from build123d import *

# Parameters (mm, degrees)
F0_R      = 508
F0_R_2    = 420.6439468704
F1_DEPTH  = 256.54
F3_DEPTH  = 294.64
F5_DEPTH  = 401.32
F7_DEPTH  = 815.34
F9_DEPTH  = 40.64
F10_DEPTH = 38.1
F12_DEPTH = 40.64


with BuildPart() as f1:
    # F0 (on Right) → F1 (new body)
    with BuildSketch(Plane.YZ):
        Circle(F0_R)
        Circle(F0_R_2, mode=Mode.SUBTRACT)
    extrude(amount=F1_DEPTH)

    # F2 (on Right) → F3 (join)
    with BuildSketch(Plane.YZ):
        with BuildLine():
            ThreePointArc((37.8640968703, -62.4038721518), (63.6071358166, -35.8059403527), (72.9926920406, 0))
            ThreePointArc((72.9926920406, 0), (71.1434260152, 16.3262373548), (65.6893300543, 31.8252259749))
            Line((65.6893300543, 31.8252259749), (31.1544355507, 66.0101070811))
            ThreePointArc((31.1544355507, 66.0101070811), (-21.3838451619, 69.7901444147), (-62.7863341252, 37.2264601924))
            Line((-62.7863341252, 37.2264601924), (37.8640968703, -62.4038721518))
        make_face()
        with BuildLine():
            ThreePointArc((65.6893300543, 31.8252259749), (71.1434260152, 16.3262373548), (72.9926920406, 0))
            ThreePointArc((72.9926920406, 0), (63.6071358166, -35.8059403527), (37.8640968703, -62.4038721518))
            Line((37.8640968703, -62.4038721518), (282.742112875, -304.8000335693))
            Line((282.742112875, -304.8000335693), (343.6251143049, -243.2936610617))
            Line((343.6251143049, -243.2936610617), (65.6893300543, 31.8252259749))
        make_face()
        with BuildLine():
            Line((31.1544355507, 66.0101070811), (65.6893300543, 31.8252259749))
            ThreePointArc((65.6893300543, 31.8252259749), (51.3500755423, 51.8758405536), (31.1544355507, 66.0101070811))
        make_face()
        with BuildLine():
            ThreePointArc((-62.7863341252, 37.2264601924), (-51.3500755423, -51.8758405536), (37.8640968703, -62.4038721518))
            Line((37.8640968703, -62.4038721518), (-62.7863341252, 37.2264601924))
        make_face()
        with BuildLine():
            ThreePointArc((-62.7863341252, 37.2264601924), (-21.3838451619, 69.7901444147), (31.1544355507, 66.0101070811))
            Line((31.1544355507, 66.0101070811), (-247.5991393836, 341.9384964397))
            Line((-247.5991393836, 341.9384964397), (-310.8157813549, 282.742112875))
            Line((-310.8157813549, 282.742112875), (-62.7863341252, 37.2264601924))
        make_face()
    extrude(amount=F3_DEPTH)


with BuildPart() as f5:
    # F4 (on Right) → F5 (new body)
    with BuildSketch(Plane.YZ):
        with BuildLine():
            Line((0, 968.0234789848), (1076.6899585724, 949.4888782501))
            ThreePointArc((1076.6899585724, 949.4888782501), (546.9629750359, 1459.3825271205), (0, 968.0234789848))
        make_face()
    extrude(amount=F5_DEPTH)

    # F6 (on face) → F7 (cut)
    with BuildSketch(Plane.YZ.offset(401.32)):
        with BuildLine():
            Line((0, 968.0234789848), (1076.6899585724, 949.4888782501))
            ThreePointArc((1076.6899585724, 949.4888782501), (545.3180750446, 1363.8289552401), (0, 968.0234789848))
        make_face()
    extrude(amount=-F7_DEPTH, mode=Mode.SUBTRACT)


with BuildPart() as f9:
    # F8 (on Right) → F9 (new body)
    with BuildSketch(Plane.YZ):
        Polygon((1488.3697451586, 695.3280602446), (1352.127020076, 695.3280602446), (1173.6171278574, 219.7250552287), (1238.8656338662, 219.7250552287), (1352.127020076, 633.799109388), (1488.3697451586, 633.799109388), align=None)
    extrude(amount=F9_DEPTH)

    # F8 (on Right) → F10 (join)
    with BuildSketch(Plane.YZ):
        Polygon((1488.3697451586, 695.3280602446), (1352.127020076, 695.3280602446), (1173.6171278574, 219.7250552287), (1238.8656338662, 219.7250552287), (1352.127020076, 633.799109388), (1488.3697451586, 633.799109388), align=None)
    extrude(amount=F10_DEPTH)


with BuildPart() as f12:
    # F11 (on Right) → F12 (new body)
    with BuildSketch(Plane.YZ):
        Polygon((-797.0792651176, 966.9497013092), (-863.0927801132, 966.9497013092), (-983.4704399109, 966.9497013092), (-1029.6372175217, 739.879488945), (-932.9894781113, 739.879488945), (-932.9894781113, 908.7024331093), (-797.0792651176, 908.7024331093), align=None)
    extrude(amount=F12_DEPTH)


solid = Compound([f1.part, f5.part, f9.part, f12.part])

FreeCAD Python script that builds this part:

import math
import FreeCAD as App
import Part
import Sketcher
from FreeCAD import Vector
Q = App.Units.Quantity


def add_polygon(sketch, points):
    """Adds a closed chain of lines whose ends are joined by coincident constraints."""
    first, n = sketch.GeometryCount, len(points)
    for a, b in zip(points, points[1:] + points[:1]):
        sketch.addGeometry(Part.LineSegment(App.Vector(*a, 0), App.Vector(*b, 0)), False)
    for i in range(n):
        sketch.addConstraint(Sketcher.Constraint("Coincident", first + i, 2, first + (i + 1) % n, 1))

doc = App.newDocument("Part")
body = doc.addObject("PartDesign::Body", "Body")

# Sketch on YZ plane
sketch1 = body.newObject("Sketcher::SketchObject", "Sketch")
sketch1.AttachmentSupport = (doc.getObject("YZ_Plane"), [""])
sketch1.MapMode = "FlatFace"
sketch1.addGeometry(Part.Circle(Vector(0, 0, 0), Vector(0, 0, 1), 508), False)
sketch1.addGeometry(Part.Circle(Vector(0, 0, 0), Vector(0, 0, 1), 421), False)
sketch1.addConstraint(Sketcher.Constraint("Coincident", 0, 3, -1, 1))
sketch1.addConstraint(Sketcher.Constraint("Coincident", 1, 3, -1, 1))
sketch1.addConstraint(Sketcher.Constraint("Diameter", 0, Q("40 in")))
sketch1.addConstraint(Sketcher.Constraint("Diameter", 1, 841.287894))
pad1 = body.newObject("PartDesign::Pad", "Pad")
pad1.Profile = sketch1
pad1.Length = Q("10.1 in")

# Sketch on YZ plane
sketch2 = body.newObject("Sketcher::SketchObject", "Sketch001")
sketch2.AttachmentSupport = (doc.getObject("YZ_Plane"), [""])
sketch2.MapMode = "FlatFace"
sketch2.addGeometry(Part.LineSegment(Vector(38, -62, 0), Vector(283, -305, 0)), False)
sketch2.addGeometry(Part.LineSegment(Vector(283, -305, 0), Vector(344, -243, 0)), False)
sketch2.addGeometry(Part.LineSegment(Vector(344, -243, 0), Vector(66, 32, 0)), False)
sketch2.addGeometry(Part.ArcOfCircle(Part.Circle(Vector(0, 0, 0), Vector(0, 0, 1), 73), math.radians(26), math.radians(65)), False)
sketch2.addGeometry(Part.LineSegment(Vector(31, 66, 0), Vector(-248, 342, 0)), False)
sketch2.addGeometry(Part.LineSegment(Vector(-248, 342, 0), Vector(-311, 283, 0)), False)
sketch2.addGeometry(Part.LineSegment(Vector(-311, 283, 0), Vector(-63, 37, 0)), False)
sketch2.addGeometry(Part.ArcOfCircle(Part.Circle(Vector(0, 0, 0), Vector(0, 0, 1), 73), math.radians(149), math.radians(301)), False)
sketch2.addConstraint(Sketcher.Constraint("Coincident", 0, 2, 1, 1))
sketch2.addConstraint(Sketcher.Constraint("Coincident", 1, 2, 2, 1))
sketch2.addConstraint(Sketcher.Constraint("Coincident", 2, 2, 3, 1))
sketch2.addConstraint(Sketcher.Constraint("Coincident", 3, 2, 4, 1))
sketch2.addConstraint(Sketcher.Constraint("Coincident", 4, 2, 5, 1))
sketch2.addConstraint(Sketcher.Constraint("Coincident", 5, 2, 6, 1))
sketch2.addConstraint(Sketcher.Constraint("Coincident", 6, 2, 7, 1))
sketch2.addConstraint(Sketcher.Constraint("Coincident", 7, 2, 0, 1))
sketch2.addConstraint(Sketcher.Constraint("Coincident", 3, 3, -1, 1))
sketch2.addConstraint(Sketcher.Constraint("Coincident", 7, 3, -1, 1))
sketch2.addConstraint(Sketcher.Constraint("Equal", 3, 7))
sketch2.addConstraint(Sketcher.Constraint("Perpendicular", 0, 1))
sketch2.addConstraint(Sketcher.Constraint("Perpendicular", 1, 2))
sketch2.addConstraint(Sketcher.Constraint("Parallel", 2, 4))
sketch2.addConstraint(Sketcher.Constraint("Parallel", 4, 6))
sketch2.addConstraint(Sketcher.Constraint("Radius", 3, 72.992692))
sketch2.addConstraint(Sketcher.Constraint("DistanceX", 0, 2, 1, 2, 60.883001))
sketch2.addConstraint(Sketcher.Constraint("DistanceY", 7, 2, 2, 2, 94.229098))
sketch2.addConstraint(Sketcher.Constraint("Distance", 1, 86.543479))
sketch2.addConstraint(Sketcher.Constraint("Distance", 2, 391.073781))
sketch2.addConstraint(Sketcher.Constraint("Distance", 5, 86.605748))
sketch2.addConstraint(Sketcher.Constraint("DistanceX", 4, 2, -1, 1, 247.599139))
sketch2.addConstraint(Sketcher.Constraint("DistanceX", 5, 2, -1, 1, 310.815781))
sketch2.addConstraint(Sketcher.Constraint("DistanceY", -1, 1, 6, 2, 37.22646))
pad2 = body.newObject("PartDesign::Pad", "Pad001")
pad2.Profile = sketch2
pad2.Length = Q("11.6 in")
body2 = doc.addObject("PartDesign::Body", "Body001")

# Sketch on YZ plane
sketch3 = body2.newObject("Sketcher::SketchObject", "Sketch002")
sketch3.AttachmentSupport = (doc.getObject("YZ_Plane001"), [""])
sketch3.MapMode = "FlatFace"
sketch3.addGeometry(Part.LineSegment(Vector(0, 968, 0), Vector(1077, 949, 0)), False)
sketch3.addGeometry(Part.ArcOfCircle(Part.Circle(Vector(538, 920, 0), Vector(0, 0, 1), 540), math.radians(3), math.radians(175)), False)
sketch3.addConstraint(Sketcher.Constraint("Coincident", 0, 1, 1, 2))
sketch3.addConstraint(Sketcher.Constraint("Coincident", 1, 1, 0, 2))
sketch3.addConstraint(Sketcher.Constraint("PointOnObject", 0, 1, -2))
sketch3.addConstraint(Sketcher.Constraint("Radius", 1, 539.845865))
sketch3.addConstraint(Sketcher.Constraint("DistanceY", 1, 1, 0, 1, 18.534601))
sketch3.addConstraint(Sketcher.Constraint("Distance", 0, 1076.849478))
sketch3.addConstraint(Sketcher.Constraint("DistanceY", -1, 1, 0, 1, 968.023479))
pad3 = body2.newObject("PartDesign::Pad", "Pad002")
pad3.Profile = sketch3
pad3.Length = Q("15.8 in")

# Sketch on YZ plane
sketch4 = body2.newObject("Sketcher::SketchObject", "Sketch003")
sketch4.AttachmentSupport = (doc.getObject("YZ_Plane001"), [""])
sketch4.MapMode = "FlatFace"
sketch4.AttachmentOffset = App.Placement(Vector(0, 0, 15.8 * 25.4), App.Rotation())
sketch4.addGeometry(Part.LineSegment(Vector(0, 968, 0), Vector(1077, 949, 0)), False)
sketch4.addGeometry(Part.ArcOfCircle(Part.Circle(Vector(536, 804, 0), Vector(0, 0, 1), 560), math.radians(15), math.radians(163)), False)
sketch4.addConstraint(Sketcher.Constraint("Coincident", 0, 1, 1, 2))
sketch4.addConstraint(Sketcher.Constraint("Coincident", 1, 1, 0, 2))
sketch4.addConstraint(Sketcher.Constraint("PointOnObject", 0, 1, -2))
sketch4.addConstraint(Sketcher.Constraint("Radius", 1, 560.351801))
sketch4.addConstraint(Sketcher.Constraint("DistanceY", 1, 1, 0, 1, 18.534601))
sketch4.addConstraint(Sketcher.Constraint("Distance", 0, 1076.849478))
sketch4.addConstraint(Sketcher.Constraint("DistanceY", -1, 1, 0, 1, 968.023479))
pocket1 = body2.newObject("PartDesign::Pocket", "Pocket")
pocket1.Profile = sketch4
pocket1.Length = Q("32.1 in")
body3 = doc.addObject("PartDesign::Body", "Body002")

# Sketch on YZ plane
sketch5 = body3.newObject("Sketcher::SketchObject", "Sketch004")
sketch5.AttachmentSupport = (doc.getObject("YZ_Plane002"), [""])
sketch5.MapMode = "FlatFace"
add_polygon(sketch5, [(1488, 695), (1352, 695), (1174, 220), (1239, 220), (1352, 634), (1488, 634)])  # lines 0-5
sketch5.addConstraint(Sketcher.Constraint("Horizontal", 0))
sketch5.addConstraint(Sketcher.Constraint("Horizontal", 2))
sketch5.addConstraint(Sketcher.Constraint("Horizontal", 4))
sketch5.addConstraint(Sketcher.Constraint("Vertical", 5))
sketch5.addConstraint(Sketcher.Constraint("Vertical", 0, 2, 3, 2))
sketch5.addConstraint(Sketcher.Constraint("Distance", 1, Q("20 in")))
sketch5.addConstraint(Sketcher.Constraint("DistanceY", 5, 1, 5, 2, 61.528951))
sketch5.addConstraint(Sketcher.Constraint("Distance", 3, 429.284828))
sketch5.addConstraint(Sketcher.Constraint("DistanceX", 0, 2, 0, 1, 136.242725))
sketch5.addConstraint(Sketcher.Constraint("DistanceX", 2, 1, 2, 2, 65.248506))
sketch5.addConstraint(Sketcher.Constraint("DistanceX", -1, 1, 0, 2, 1352.12702))
sketch5.addConstraint(Sketcher.Constraint("DistanceY", -1, 1, 0, 2, 695.32806))
pad4 = body3.newObject("PartDesign::Pad", "Pad003")
pad4.Profile = sketch5
pad4.Length = Q("1.6 in")

# Sketch on YZ plane
sketch6 = body3.newObject("Sketcher::SketchObject", "Sketch005")
sketch6.AttachmentSupport = (doc.getObject("YZ_Plane002"), [""])
sketch6.MapMode = "FlatFace"
add_polygon(sketch6, [(1488, 695), (1352, 695), (1174, 220), (1239, 220), (1352, 634), (1488, 634)])  # lines 0-5
sketch6.addConstraint(Sketcher.Constraint("Horizontal", 0))
sketch6.addConstraint(Sketcher.Constraint("Horizontal", 2))
sketch6.addConstraint(Sketcher.Constraint("Horizontal", 4))
sketch6.addConstraint(Sketcher.Constraint("Vertical", 5))
sketch6.addConstraint(Sketcher.Constraint("Vertical", 0, 2, 3, 2))
sketch6.addConstraint(Sketcher.Constraint("Distance", 1, Q("20 in")))
sketch6.addConstraint(Sketcher.Constraint("DistanceY", 5, 1, 5, 2, 61.528951))
sketch6.addConstraint(Sketcher.Constraint("Distance", 3, 429.284828))
sketch6.addConstraint(Sketcher.Constraint("DistanceX", 0, 2, 0, 1, 136.242725))
sketch6.addConstraint(Sketcher.Constraint("DistanceX", 2, 1, 2, 2, 65.248506))
sketch6.addConstraint(Sketcher.Constraint("DistanceX", -1, 1, 0, 2, 1352.12702))
sketch6.addConstraint(Sketcher.Constraint("DistanceY", -1, 1, 0, 2, 695.32806))
pad5 = body3.newObject("PartDesign::Pad", "Pad004")
pad5.Profile = sketch6
pad5.Length = Q("1.5 in")
body4 = doc.addObject("PartDesign::Body", "Body003")

# Sketch on YZ plane
sketch7 = body4.newObject("Sketcher::SketchObject", "Sketch006")
sketch7.AttachmentSupport = (doc.getObject("YZ_Plane003"), [""])
sketch7.MapMode = "FlatFace"
add_polygon(sketch7, [(-797, 967), (-983, 967), (-1030, 740), (-933, 740), (-933, 909), (-797, 909)])  # lines 0-5
sketch7.addConstraint(Sketcher.Constraint("Horizontal", 0))
sketch7.addConstraint(Sketcher.Constraint("Horizontal", 2))
sketch7.addConstraint(Sketcher.Constraint("Vertical", 3))
sketch7.addConstraint(Sketcher.Constraint("Horizontal", 4))
sketch7.addConstraint(Sketcher.Constraint("Vertical", 5))
sketch7.addConstraint(Sketcher.Constraint("DistanceX", 2, 1, 2, 2, 96.647739))
sketch7.addConstraint(Sketcher.Constraint("DistanceY", 5, 1, 5, 2, 58.247268))
sketch7.addConstraint(Sketcher.Constraint("DistanceY", -1, 1, 0, 2, 966.949701))
sketch7.addConstraint(Sketcher.Constraint("DistanceX", 0, 2, 0, 1, 186.391175))
sketch7.addConstraint(Sketcher.Constraint("DistanceX", 4, 1, 4, 2, 135.910213))
sketch7.addConstraint(Sketcher.Constraint("DistanceY", 3, 1, 3, 2, 168.822944))
sketch7.addConstraint(Sketcher.Constraint("DistanceX", 0, 2, -1, 1, 983.47044))
pad6 = body4.newObject("PartDesign::Pad", "Pad005")
pad6.Profile = sketch7
pad6.Length = Q("1.6 in")

doc.recompute()
